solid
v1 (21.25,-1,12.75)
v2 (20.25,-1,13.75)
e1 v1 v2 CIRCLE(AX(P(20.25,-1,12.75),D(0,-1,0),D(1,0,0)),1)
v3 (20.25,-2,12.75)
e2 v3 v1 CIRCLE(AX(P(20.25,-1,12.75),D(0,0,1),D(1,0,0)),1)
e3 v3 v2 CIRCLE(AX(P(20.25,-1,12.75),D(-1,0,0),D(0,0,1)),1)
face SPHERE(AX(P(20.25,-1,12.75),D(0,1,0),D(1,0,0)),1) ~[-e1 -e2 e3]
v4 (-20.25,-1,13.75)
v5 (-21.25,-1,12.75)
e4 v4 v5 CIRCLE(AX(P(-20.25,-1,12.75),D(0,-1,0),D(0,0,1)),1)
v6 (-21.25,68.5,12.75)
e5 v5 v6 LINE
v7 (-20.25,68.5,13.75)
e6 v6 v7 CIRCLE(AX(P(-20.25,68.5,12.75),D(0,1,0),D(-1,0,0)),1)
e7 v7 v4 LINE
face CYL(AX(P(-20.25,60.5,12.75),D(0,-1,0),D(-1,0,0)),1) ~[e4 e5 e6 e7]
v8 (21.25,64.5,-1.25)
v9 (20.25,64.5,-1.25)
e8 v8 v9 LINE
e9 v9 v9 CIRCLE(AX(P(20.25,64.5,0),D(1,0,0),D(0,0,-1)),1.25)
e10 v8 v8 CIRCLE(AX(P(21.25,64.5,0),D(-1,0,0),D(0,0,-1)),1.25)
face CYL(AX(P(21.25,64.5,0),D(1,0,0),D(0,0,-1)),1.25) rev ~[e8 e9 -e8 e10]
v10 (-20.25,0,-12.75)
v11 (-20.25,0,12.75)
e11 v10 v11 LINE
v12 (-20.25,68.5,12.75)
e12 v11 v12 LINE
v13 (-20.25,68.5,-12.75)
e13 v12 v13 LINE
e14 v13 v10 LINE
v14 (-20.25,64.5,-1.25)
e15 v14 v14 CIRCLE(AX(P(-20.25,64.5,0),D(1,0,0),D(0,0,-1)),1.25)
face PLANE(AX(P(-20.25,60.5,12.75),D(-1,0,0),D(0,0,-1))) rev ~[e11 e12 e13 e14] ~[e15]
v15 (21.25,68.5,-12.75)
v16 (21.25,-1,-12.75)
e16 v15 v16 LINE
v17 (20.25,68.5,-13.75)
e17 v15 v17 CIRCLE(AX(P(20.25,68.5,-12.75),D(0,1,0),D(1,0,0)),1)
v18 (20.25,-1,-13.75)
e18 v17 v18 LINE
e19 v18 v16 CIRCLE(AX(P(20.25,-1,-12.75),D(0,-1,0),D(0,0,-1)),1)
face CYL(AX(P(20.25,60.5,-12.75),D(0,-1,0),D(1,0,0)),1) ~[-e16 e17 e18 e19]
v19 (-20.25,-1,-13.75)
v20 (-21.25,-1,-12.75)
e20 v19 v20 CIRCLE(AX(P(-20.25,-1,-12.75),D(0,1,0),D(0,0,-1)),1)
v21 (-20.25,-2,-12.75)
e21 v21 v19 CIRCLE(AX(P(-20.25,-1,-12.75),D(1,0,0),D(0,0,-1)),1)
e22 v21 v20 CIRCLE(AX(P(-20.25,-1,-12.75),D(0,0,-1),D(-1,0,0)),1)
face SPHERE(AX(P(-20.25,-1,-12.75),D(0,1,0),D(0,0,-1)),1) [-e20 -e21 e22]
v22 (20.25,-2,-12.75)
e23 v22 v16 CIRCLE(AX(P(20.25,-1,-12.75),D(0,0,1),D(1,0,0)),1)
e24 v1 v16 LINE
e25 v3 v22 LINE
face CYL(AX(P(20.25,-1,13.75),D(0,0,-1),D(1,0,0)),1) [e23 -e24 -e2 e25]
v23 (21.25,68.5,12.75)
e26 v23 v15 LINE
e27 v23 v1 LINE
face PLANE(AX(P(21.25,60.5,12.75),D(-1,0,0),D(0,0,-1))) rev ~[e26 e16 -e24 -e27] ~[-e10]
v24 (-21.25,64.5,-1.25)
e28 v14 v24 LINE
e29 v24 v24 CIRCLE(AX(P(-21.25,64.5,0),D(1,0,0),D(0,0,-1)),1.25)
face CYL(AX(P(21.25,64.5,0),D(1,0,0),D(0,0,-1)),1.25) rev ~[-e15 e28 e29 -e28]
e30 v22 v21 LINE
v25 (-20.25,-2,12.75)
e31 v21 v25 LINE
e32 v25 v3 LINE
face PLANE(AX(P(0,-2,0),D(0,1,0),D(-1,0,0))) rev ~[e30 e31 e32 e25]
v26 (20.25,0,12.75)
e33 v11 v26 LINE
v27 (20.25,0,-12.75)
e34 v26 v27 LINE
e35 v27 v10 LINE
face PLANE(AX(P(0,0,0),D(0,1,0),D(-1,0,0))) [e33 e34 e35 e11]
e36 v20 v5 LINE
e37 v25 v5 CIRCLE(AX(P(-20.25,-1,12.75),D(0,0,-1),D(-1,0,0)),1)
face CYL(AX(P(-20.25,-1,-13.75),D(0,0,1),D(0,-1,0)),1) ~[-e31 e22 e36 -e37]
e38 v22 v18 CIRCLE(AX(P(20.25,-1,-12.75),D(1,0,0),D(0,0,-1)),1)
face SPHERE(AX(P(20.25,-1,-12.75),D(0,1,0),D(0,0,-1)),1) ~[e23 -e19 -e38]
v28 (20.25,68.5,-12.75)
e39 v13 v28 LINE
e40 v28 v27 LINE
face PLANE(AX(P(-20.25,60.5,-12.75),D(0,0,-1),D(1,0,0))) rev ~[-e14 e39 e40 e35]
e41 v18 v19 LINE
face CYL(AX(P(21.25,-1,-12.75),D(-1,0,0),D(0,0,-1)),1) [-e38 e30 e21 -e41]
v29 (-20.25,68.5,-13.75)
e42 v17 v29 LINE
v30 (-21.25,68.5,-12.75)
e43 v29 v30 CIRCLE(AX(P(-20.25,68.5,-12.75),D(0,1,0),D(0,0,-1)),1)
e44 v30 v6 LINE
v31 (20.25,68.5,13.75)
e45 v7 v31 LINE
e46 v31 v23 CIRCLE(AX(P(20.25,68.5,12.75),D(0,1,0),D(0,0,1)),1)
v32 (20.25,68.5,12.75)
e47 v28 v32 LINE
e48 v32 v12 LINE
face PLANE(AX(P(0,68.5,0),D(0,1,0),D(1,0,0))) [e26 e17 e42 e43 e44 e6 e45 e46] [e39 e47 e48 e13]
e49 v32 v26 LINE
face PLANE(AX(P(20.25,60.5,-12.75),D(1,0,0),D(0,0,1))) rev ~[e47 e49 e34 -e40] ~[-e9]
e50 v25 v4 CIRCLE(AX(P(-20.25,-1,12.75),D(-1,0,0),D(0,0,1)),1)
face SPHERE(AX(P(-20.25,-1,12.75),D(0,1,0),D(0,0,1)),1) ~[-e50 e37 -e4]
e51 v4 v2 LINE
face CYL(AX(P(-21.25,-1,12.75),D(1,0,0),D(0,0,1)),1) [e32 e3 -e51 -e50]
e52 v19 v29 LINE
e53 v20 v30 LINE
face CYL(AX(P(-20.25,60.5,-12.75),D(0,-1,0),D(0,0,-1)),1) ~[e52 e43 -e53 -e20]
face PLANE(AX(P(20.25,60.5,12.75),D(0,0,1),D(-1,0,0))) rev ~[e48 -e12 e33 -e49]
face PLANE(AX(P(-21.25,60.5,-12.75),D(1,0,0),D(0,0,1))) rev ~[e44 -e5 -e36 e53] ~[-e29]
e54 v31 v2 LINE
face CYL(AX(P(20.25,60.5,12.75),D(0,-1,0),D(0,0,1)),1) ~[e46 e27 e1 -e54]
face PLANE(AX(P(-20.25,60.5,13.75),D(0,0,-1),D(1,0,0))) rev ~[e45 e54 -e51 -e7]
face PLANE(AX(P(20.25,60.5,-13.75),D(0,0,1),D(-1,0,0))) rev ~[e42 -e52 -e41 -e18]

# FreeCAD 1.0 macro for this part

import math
import FreeCAD as App
import Part
import Sketcher


def edges_at(feature, points):
    """Names of the edges that pass closest to the given points."""
    edges = feature.Shape.Edges
    near = lambda p: min(range(len(edges)), key=lambda i: edges[i].distToShape(Part.Vertex(*p))[0])
    return sorted({f"Edge{near(p) + 1}" for p in points})


def add_polygon(sketch, points):
    """Adds a closed chain of lines whose ends are joined by coincident constraints."""
    first, n = sketch.GeometryCount, len(points)
    for a, b in zip(points, points[1:] + points[:1]):
        sketch.addGeometry(Part.LineSegment(App.Vector(*a, 0), App.Vector(*b, 0)), False)
    for i in range(n):
        sketch.addConstraint(Sketcher.Constraint("Coincident", first + i, 2, first + (i + 1) % n, 1))

doc = App.newDocument("Part")
body = doc.addObject("PartDesign::Body", "Body")

# Sketch on XZ plane
sketch1 = body.newObject("Sketcher::SketchObject", "Sketch")
sketch1.AttachmentSupport = (doc.getObject("XZ_Plane"), [""])
sketch1.MapMode = "FlatFace"
add_polygon(sketch1, [(21.25, 13.75), (21.25, -13.75), (-21.25, -13.75), (-21.25, 13.75)])  # lines 0-3
sketch1.addConstraint([
    Sketcher.Constraint("Vertical", 0),
    Sketcher.Constraint("Horizontal", 1),
    Sketcher.Constraint("Vertical", 2),
    Sketcher.Constraint("Horizontal", 3),
    Sketcher.Constraint("Symmetric", 0, 2, 2, 2, -1, 1),
    Sketcher.Constraint("DistanceX", 1, 2, 1, 1, 42.5),
    Sketcher.Constraint("DistanceY", 0, 2, 0, 1, 27.5),
])
pad1 = body.newObject("PartDesign::Pad", "Pad")
pad1.Profile = sketch1
pad1.Length = 2

# Sketch on XZ plane
sketch2 = body.newObject("Sketcher::SketchObject", "Sketch001")
sketch2.AttachmentSupport = (doc.getObject("XZ_Plane"), [""])
sketch2.MapMode = "FlatFace"
add_polygon(sketch2, [(-21.25, 13.75), (21.25, 13.75), (21.25, -13.75), (-21.25, -13.75)])  # lines 0-3
add_polygon(sketch2, [(20.25, 12.75), (-20.25, 12.75), (-20.25, -12.75), (20.25, -12.75)])  # lines 4-7
sketch2.addConstraint([
    Sketcher.Constraint("Horizontal", 0),
    Sketcher.Constraint("Vertical", 1),
    Sketcher.Constraint("Horizontal", 2),
    Sketcher.Constraint("Vertical", 3),
    Sketcher.Constraint("Horizontal", 4),
    Sketcher.Constraint("Vertical", 5),
    Sketcher.Constraint("Horizontal", 6),
    Sketcher.Constraint("Vertical", 7),
    Sketcher.Constraint("Symmetric", 0, 2, 2, 2, -1, 1),
    Sketcher.Constraint("Symmetric", 4, 2, 6, 2, -1, 1),
    Sketcher.Constraint("DistanceX", 0, 1, 0, 2, 42.5),
    Sketcher.Constraint("DistanceX", 4, 2, 4, 1, 40.5),
    Sketcher.Constraint("DistanceY", 1, 2, 1, 1, 27.5),
    Sketcher.Constraint("DistanceY", 5, 2, 5, 1, 25.5),
])
pad2 = body.newObject("PartDesign::Pad", "Pad001")
pad2.Profile = sketch2
pad2.Length = 60.5
pad2.Reversed = True
doc.recompute()

fillet = body.newObject("PartDesign::Fillet", "Fillet")
fillet.Base = (pad2, edges_at(pad2, [
    (21.25, 29.25, 13.75),
    (21.25, 29.25, -13.75),
    (-21.25, 29.25, 13.75),
    (-21.25, 29.25, -13.75),
    (0, -2, -13.75),
    (21.25, -2, 0),
    (0, -2, 13.75),
    (-21.25, -2, 0),
]))
fillet.Radius = 1

# Sketch on XZ plane
sketch3 = body.newObject("Sketcher::SketchObject", "Sketch002")
sketch3.AttachmentSupport = (doc.getObject("XZ_Plane"), [""])
sketch3.MapMode = "FlatFace"
sketch3.AttachmentOffset = App.Placement(App.Vector(0, 0, -60.5), App.Rotation())
sketch3.addGeometry(Part.LineSegment(App.Vector(20.25, -13.75, 0), App.Vector(-20.25, -13.75, 0)), False)  # 0
sketch3.addGeometry(Part.ArcOfCircle(Part.Circle(App.Vector(-20.25, -12.75, 0), App.Vector(0, 0, 1), 1), math.radians(180), math.radians(270)), False)  # 1
sketch3.addGeometry(Part.LineSegment(App.Vector(-21.25, -12.75, 0), App.Vector(-21.25, 12.75, 0)), False)  # 2
sketch3.addGeometry(Part.ArcOfCircle(Part.Circle(App.Vector(-20.25, 12.75, 0), App.Vector(0, 0, 1), 1), math.radians(90), math.radians(180)), False)  # 3
sketch3.addGeometry(Part.LineSegment(App.Vector(-20.25, 13.75, 0), App.Vector(20.25, 13.75, 0)), False)  # 4
sketch3.addGeometry(Part.ArcOfCircle(Part.Circle(App.Vector(20.25, 12.75, 0), App.Vector(0, 0, 1), 1), math.radians(0), math.radians(90)), False)  # 5
sketch3.addGeometry(Part.LineSegment(App.Vector(21.25, 12.75, 0), App.Vector(21.25, -12.75, 0)), False)  # 6
sketch3.addGeometry(Part.ArcOfCircle(Part.Circle(App.Vector(20.25, -12.75, 0), App.Vector(0, 0, 1), 1), math.radians(-90), math.radians(0)), False)  # 7
add_polygon(sketch3, [(20.25, 12.75), (-20.25, 12.75), (-20.25, -12.75), (20.25, -12.75)])  # lines 8-11
sketch3.addConstraint([
    Sketcher.Constraint("Tangent", 0, 2, 1, 2),
    Sketcher.Constraint("Tangent", 1, 1, 2, 1),
    Sketcher.Constraint("Tangent", 2, 2, 3, 2),
    Sketcher.Constraint("Tangent", 3, 1, 4, 1),
    Sketcher.Constraint("Tangent", 4, 2, 5, 2),
    Sketcher.Constraint("Tangent", 5, 1, 6, 1),
    Sketcher.Constraint("Tangent", 6, 2, 7, 2),
    Sketcher.Constraint("Tangent", 7, 1, 0, 1),
    Sketcher.Constraint("Horizontal", 0),
    Sketcher.Constraint("Vertical", 2),
    Sketcher.Constraint("Horizontal", 4),
    Sketcher.Constraint("Vertical", 6),
    Sketcher.Constraint("Horizontal", 8),
    Sketcher.Constraint("Vertical", 9),
    Sketcher.Constraint("Horizontal", 10),
    Sketcher.Constraint("Vertical", 11),
    Sketcher.Constraint("Coincident", 8, 2, 3, 3),
    Sketcher.Constraint("Coincident", 9, 2, 1, 3),
    Sketcher.Constraint("Coincident", 10, 2, 7, 3),
    Sketcher.Constraint("Equal", 3, 5),
    Sketcher.Constraint("Symmetric", 1, 3, 5, 3, -1, 1),
    Sketcher.Constraint("Radius", 1, 1.0),
    Sketcher.Constraint("DistanceX", 0, 2, 0, 1, 40.5),
    Sketcher.Constraint("DistanceY", 2, 1, 2, 2, 25.5),
])
pad3 = body.newObject("PartDesign::Pad", "Pad002")
pad3.Profile = sketch3
pad3.Length = 8
pad3.Reversed = True

# Sketch on YZ plane
sketch4 = body.newObject("Sketcher::SketchObject", "Sketch003")
sketch4.AttachmentSupport = (doc.getObject("YZ_Plane"), [""])
sketch4.MapMode = "FlatFace"
sketch4.AttachmentOffset = App.Placement(App.Vector(0, 0, 21.25), App.Rotation())
sketch4.addGeometry(Part.Circle(App.Vector(64.5, 0, 0), App.Vector(0, 0, 1), 1.25), False)
sketch4.addConstraint([
    Sketcher.Constraint("PointOnObject", 0, 3, -1),
    Sketcher.Constraint("Diameter", 0, 2.5),
    Sketcher.Constraint("DistanceX", -1, 1, 0, 3, 64.5),
])
pocket1 = body.newObject("PartDesign::Pocket", "Pocket")
pocket1.Profile = sketch4
pocket1.Type = "ThroughAll"

doc.recompute()
